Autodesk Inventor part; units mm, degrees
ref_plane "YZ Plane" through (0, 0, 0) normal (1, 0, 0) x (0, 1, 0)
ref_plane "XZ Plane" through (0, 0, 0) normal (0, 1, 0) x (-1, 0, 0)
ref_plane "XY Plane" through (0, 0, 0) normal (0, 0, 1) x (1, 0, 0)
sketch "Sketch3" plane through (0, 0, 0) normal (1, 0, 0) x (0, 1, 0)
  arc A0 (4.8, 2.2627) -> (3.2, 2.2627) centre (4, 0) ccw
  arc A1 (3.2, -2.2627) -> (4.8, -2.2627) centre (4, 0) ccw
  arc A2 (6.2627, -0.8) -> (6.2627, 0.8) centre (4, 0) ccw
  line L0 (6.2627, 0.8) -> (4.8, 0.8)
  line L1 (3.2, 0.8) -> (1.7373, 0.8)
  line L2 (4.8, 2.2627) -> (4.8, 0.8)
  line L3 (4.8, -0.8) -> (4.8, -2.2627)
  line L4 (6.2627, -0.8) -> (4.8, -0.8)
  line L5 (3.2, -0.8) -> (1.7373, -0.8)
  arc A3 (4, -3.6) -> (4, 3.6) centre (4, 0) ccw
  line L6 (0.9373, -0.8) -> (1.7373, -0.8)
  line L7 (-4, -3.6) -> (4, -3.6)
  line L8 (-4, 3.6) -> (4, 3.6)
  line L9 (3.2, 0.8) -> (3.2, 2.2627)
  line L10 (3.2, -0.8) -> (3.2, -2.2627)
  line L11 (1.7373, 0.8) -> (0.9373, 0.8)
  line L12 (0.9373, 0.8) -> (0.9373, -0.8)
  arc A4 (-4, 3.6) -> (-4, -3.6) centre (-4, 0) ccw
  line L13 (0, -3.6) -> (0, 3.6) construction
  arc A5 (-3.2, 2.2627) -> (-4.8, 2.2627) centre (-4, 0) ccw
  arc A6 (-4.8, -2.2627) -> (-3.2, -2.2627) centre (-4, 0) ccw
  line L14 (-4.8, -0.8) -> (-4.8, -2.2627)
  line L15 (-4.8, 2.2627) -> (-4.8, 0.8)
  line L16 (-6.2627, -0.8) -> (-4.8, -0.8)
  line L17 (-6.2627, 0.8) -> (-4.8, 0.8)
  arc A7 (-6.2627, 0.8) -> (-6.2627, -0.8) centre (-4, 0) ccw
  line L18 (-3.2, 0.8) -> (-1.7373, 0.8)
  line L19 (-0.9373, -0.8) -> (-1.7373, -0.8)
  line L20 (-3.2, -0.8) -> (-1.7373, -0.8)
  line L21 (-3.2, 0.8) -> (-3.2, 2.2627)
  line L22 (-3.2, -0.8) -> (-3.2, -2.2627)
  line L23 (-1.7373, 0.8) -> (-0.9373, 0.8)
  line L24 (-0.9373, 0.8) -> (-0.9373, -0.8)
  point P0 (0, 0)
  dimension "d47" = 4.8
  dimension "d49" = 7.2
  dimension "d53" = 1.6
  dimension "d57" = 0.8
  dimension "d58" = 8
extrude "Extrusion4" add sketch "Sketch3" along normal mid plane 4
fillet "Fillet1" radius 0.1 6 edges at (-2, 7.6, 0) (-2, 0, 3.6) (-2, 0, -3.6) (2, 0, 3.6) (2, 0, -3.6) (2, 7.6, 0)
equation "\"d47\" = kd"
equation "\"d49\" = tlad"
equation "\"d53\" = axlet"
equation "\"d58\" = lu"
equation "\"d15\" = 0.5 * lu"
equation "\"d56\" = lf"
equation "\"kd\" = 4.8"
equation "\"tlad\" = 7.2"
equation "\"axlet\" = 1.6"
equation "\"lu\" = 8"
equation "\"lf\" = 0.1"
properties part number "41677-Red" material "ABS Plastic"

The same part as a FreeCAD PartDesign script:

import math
import FreeCAD as App
import Part
import Sketcher


def edges_at(feature, points):
    """Names of the edges that pass closest to the given points."""
    edges = feature.Shape.Edges
    near = lambda p: min(range(len(edges)), key=lambda i: edges[i].distToShape(Part.Vertex(*p))[0])
    return sorted({f"Edge{near(p) + 1}" for p in points})

doc = App.newDocument("Part")
body = doc.addObject("PartDesign::Body", "Body")

sketch1 = body.newObject("Sketcher::SketchObject", "Sketch")
sketch1.AttachmentSupport = (doc.getObject("YZ_Plane"), [""])
sketch1.MapMode = "FlatFace"
sketch1.addGeometry(Part.LineSegment(App.Vector(-4, -3.6, 0), App.Vector(4, -3.6, 0)), False)
sketch1.addGeometry(Part.ArcOfCircle(Part.Circle(App.Vector(4, 0, 0), App.Vector(0, 0, 1), 3.6), math.radians(-90), math.radians(90)), False)
sketch1.addGeometry(Part.LineSegment(App.Vector(4, 3.6, 0), App.Vector(-4, 3.6, 0)), False)
sketch1.addGeometry(Part.ArcOfCircle(Part.Circle(App.Vector(-4, 0, 0), App.Vector(0, 0, 1), 3.6), math.radians(90), math.radians(270)), False)
sketch1.addGeometry(Part.ArcOfCircle(Part.Circle(App.Vector(-4, 0, 0), App.Vector(0, 0, 1), 2.399961), math.radians(70.528448), math.radians(109.471552)), False)
sketch1.addGeometry(Part.LineSegment(App.Vector(-3.2, 2.2627, 0), App.Vector(-3.2, 0.8, 0)), False)
sketch1.addGeometry(Part.LineSegment(App.Vector(-3.2, 0.8, 0), App.Vector(-0.9373, 0.8, 0)), False)
sketch1.addGeometry(Part.LineSegment(App.Vector(-0.9373, 0.8, 0), App.Vector(-0.9373, -0.8, 0)), False)
sketch1.addGeometry(Part.LineSegment(App.Vector(-0.9373, -0.8, 0), App.Vector(-3.2, -0.8, 0)), False)
sketch1.addGeometry(Part.LineSegment(App.Vector(-3.2, -0.8, 0), App.Vector(-3.2, -2.2627, 0)), False)
sketch1.addGeometry(Part.ArcOfCircle(Part.Circle(App.Vector(-4, 0, 0), App.Vector(0, 0, 1), 2.399961), math.radians(-109.471552), math.radians(-70.528448)), False)
sketch1.addGeometry(Part.LineSegment(App.Vector(-4.8, -2.2627, 0), App.Vector(-4.8, -0.8, 0)), False)
sketch1.addGeometry(Part.LineSegment(App.Vector(-4.8, -0.8, 0), App.Vector(-6.2627, -0.8, 0)), False)
sketch1.addGeometry(Part.ArcOfCircle(Part.Circle(App.Vector(-4, 0, 0), App.Vector(0, 0, 1), 2.399961), math.radians(160.528448), math.radians(199.471552)), False)
sketch1.addGeometry(Part.LineSegment(App.Vector(-6.2627, 0.8, 0), App.Vector(-4.8, 0.8, 0)), False)
sketch1.addGeometry(Part.LineSegment(App.Vector(-4.8, 0.8, 0), App.Vector(-4.8, 2.2627, 0)), False)
sketch1.addGeometry(Part.ArcOfCircle(Part.Circle(App.Vector(4, 0, 0), App.Vector(0, 0, 1), 2.399961), math.radians(70.528448), math.radians(109.471552)), False)
sketch1.addGeometry(Part.LineSegment(App.Vector(4.8, 2.2627, 0), App.Vector(4.8, 0.8, 0)), False)
sketch1.addGeometry(Part.LineSegment(App.Vector(4.8, 0.8, 0), App.Vector(6.2627, 0.8, 0)), False)
sketch1.addGeometry(Part.ArcOfCircle(Part.Circle(App.Vector(4, 0, 0), App.Vector(0, 0, 1), 2.399961), math.radians(-19.471552), math.radians(19.471552)), False)
sketch1.addGeometry(Part.LineSegment(App.Vector(6.2627, -0.8, 0), App.Vector(4.8, -0.8, 0)), False)
sketch1.addGeometry(Part.LineSegment(App.Vector(4.8, -0.8, 0), App.Vector(4.8, -2.2627, 0)), False)
sketch1.addGeometry(Part.ArcOfCircle(Part.Circle(App.Vector(4, 0, 0), App.Vector(0, 0, 1), 2.399961), math.radians(-109.471552), math.radians(-70.528448)), False)
sketch1.addGeometry(Part.LineSegment(App.Vector(3.2, -2.2627, 0), App.Vector(3.2, -0.8, 0)), False)
sketch1.addGeometry(Part.LineSegment(App.Vector(3.2, -0.8, 0), App.Vector(0.9373, -0.8, 0)), False)
sketch1.addGeometry(Part.LineSegment(App.Vector(0.9373, -0.8, 0), App.Vector(0.9373, 0.8, 0)), False)
sketch1.addGeometry(Part.LineSegment(App.Vector(0.9373, 0.8, 0), App.Vector(3.2, 0.8, 0)), False)
sketch1.addGeometry(Part.LineSegment(App.Vector(3.2, 0.8, 0), App.Vector(3.2, 2.2627, 0)), False)
sketch1.addConstraint(Sketcher.Constraint("Tangent", 0, 2, 1, 1))
sketch1.addConstraint(Sketcher.Constraint("Tangent", 1, 2, 2, 1))
sketch1.addConstraint(Sketcher.Constraint("Tangent", 2, 2, 3, 1))
sketch1.addConstraint(Sketcher.Constraint("Tangent", 3, 2, 0, 1))
sketch1.addConstraint(Sketcher.Constraint("Coincident", 4, 1, 5, 1))
sketch1.addConstraint(Sketcher.Constraint("Coincident", 5, 2, 6, 1))
sketch1.addConstraint(Sketcher.Constraint("Coincident", 6, 2, 7, 1))
sketch1.addConstraint(Sketcher.Constraint("Coincident", 7, 2, 8, 1))
sketch1.addConstraint(Sketcher.Constraint("Coincident", 8, 2, 9, 1))
sketch1.addConstraint(Sketcher.Constraint("Coincident", 9, 2, 10, 2))
sketch1.addConstraint(Sketcher.Constraint("Coincident", 10, 1, 11, 1))
sketch1.addConstraint(Sketcher.Constraint("Coincident", 11, 2, 12, 1))
sketch1.addConstraint(Sketcher.Constraint("Coincident", 12, 2, 13, 2))
sketch1.addConstraint(Sketcher.Constraint("Coincident", 13, 1, 14, 1))
sketch1.addConstraint(Sketcher.Constraint("Coincident", 14, 2, 15, 1))
sketch1.addConstraint(Sketcher.Constraint("Coincident", 15, 2, 4, 2))
sketch1.addConstraint(Sketcher.Constraint("Coincident", 16, 1, 17, 1))
sketch1.addConstraint(Sketcher.Constraint("Coincident", 17, 2, 18, 1))
sketch1.addConstraint(Sketcher.Constraint("Coincident", 18, 2, 19, 2))
sketch1.addConstraint(Sketcher.Constraint("Coincident", 19, 1, 20, 1))
sketch1.addConstraint(Sketcher.Constraint("Coincident", 20, 2, 21, 1))
sketch1.addConstraint(Sketcher.Constraint("Coincident", 21, 2, 22, 2))
sketch1.addConstraint(Sketcher.Constraint("Coincident", 22, 1, 23, 1))
sketch1.addConstraint(Sketcher.Constraint("Coincident", 23, 2, 24, 1))
sketch1.addConstraint(Sketcher.Constraint("Coincident", 24, 2, 25, 1))
sketch1.addConstraint(Sketcher.Constraint("Coincident", 25, 2, 26, 1))
sketch1.addConstraint(Sketcher.Constraint("Coincident", 26, 2, 27, 1))
sketch1.addConstraint(Sketcher.Constraint("Coincident", 27, 2, 16, 2))
sketch1.addConstraint(Sketcher.Constraint("Horizontal", 0))
sketch1.addConstraint(Sketcher.Constraint("Horizontal", 2))
sketch1.addConstraint(Sketcher.Constraint("Vertical", 5))
sketch1.addConstraint(Sketcher.Constraint("Horizontal", 6))
sketch1.addConstraint(Sketcher.Constraint("Vertical", 7))
sketch1.addConstraint(Sketcher.Constraint("Horizontal", 8))
sketch1.addConstraint(Sketcher.Constraint("Vertical", 9))
sketch1.addConstraint(Sketcher.Constraint("Vertical", 11))
sketch1.addConstraint(Sketcher.Constraint("Horizontal", 12))
sketch1.addConstraint(Sketcher.Constraint("Horizontal", 14))
sketch1.addConstraint(Sketcher.Constraint("Vertical", 15))
sketch1.addConstraint(Sketcher.Constraint("Vertical", 17))
sketch1.addConstraint(Sketcher.Constraint("Horizontal", 18))
sketch1.addConstraint(Sketcher.Constraint("Horizontal", 20))
sketch1.addConstraint(Sketcher.Constraint("Vertical", 21))
sketch1.addConstraint(Sketcher.Constraint("Vertical", 23))
sketch1.addConstraint(Sketcher.Constraint("Horizontal", 24))
sketch1.addConstraint(Sketcher.Constraint("Vertical", 25))
sketch1.addConstraint(Sketcher.Constraint("Horizontal", 26))
sketch1.addConstraint(Sketcher.Constraint("Vertical", 27))
sketch1.addConstraint(Sketcher.Constraint("Coincident", 4, 3, 3, 3))
sketch1.addConstraint(Sketcher.Constraint("Coincident", 10, 3, 3, 3))
sketch1.addConstraint(Sketcher.Constraint("Coincident", 13, 3, 3, 3))
sketch1.addConstraint(Sketcher.Constraint("Coincident", 16, 3, 1, 3))
sketch1.addConstraint(Sketcher.Constraint("Coincident", 19, 3, 1, 3))
sketch1.addConstraint(Sketcher.Constraint("Coincident", 22, 3, 1, 3))
sketch1.addConstraint(Sketcher.Constraint("Equal", 4, 10))
sketch1.addConstraint(Sketcher.Constraint("Equal", 10, 13))
sketch1.addConstraint(Sketcher.Constraint("Equal", 13, 16))
sketch1.addConstraint(Sketcher.Constraint("Equal", 16, 19))
sketch1.addConstraint(Sketcher.Constraint("Equal", 19, 22))
sketch1.addConstraint(Sketcher.Constraint("Symmetric", 1, 3, 3, 3, -1, 1))
sketch1.addConstraint(Sketcher.Constraint("Symmetric", 11, 2, 17, 2, -1, 1))
sketch1.addConstraint(Sketcher.Constraint("Symmetric", 14, 2, 20, 2, -1, 1))
sketch1.addConstraint(Sketcher.Constraint("Symmetric", 5, 2, 23, 2, -1, 1))
sketch1.addConstraint(Sketcher.Constraint("Symmetric", 7, 2, 25, 2, -1, 1))
sketch1.addConstraint(Sketcher.Constraint("Symmetric", 14, 2, 17, 2, -2))
sketch1.addConstraint(Sketcher.Constraint("Symmetric", 8, 2, 23, 2, -2))
sketch1.addConstraint(Sketcher.Constraint("Horizontal", 9, 2, 10, 1))
sketch1.addConstraint(Sketcher.Constraint("Horizontal", 8, 2, 11, 2))
sketch1.addConstraint(Sketcher.Constraint("Horizontal", 16, 1, 27, 2))
sketch1.addConstraint(Sketcher.Constraint("Equal", 20, 5))
sketch1.addConstraint(Sketcher.Constraint("Radius", 1, 3.6))
sketch1.addConstraint(Sketcher.Constraint("Radius", 4, 2.4))
sketch1.addConstraint(Sketcher.Constraint("DistanceX", 0, 1, 0, 2, 8.0))
sketch1.addConstraint(Sketcher.Constraint("DistanceY", 7, 2, 7, 1, 1.6))
sketch1.addConstraint(Sketcher.Constraint("DistanceX", 6, 1, 6, 2, 2.2627))
pad1 = body.newObject("PartDesign::Pad", "Pad")
pad1.Profile = sketch1
pad1.Length = 4
pad1.Midplane = True
doc.recompute()

fillet = body.newObject("PartDesign::Fillet", "Fillet")
fillet.Base = (pad1, edges_at(pad1, [
    (-2, 7.6, 0),
    (-2, 0, 3.6),
    (-2, 0, -3.6),
    (2, 0, 3.6),
    (2, 0, -3.6),
    (2, 7.6, 0),
]))
fillet.Radius = 0.1

doc.recompute()
